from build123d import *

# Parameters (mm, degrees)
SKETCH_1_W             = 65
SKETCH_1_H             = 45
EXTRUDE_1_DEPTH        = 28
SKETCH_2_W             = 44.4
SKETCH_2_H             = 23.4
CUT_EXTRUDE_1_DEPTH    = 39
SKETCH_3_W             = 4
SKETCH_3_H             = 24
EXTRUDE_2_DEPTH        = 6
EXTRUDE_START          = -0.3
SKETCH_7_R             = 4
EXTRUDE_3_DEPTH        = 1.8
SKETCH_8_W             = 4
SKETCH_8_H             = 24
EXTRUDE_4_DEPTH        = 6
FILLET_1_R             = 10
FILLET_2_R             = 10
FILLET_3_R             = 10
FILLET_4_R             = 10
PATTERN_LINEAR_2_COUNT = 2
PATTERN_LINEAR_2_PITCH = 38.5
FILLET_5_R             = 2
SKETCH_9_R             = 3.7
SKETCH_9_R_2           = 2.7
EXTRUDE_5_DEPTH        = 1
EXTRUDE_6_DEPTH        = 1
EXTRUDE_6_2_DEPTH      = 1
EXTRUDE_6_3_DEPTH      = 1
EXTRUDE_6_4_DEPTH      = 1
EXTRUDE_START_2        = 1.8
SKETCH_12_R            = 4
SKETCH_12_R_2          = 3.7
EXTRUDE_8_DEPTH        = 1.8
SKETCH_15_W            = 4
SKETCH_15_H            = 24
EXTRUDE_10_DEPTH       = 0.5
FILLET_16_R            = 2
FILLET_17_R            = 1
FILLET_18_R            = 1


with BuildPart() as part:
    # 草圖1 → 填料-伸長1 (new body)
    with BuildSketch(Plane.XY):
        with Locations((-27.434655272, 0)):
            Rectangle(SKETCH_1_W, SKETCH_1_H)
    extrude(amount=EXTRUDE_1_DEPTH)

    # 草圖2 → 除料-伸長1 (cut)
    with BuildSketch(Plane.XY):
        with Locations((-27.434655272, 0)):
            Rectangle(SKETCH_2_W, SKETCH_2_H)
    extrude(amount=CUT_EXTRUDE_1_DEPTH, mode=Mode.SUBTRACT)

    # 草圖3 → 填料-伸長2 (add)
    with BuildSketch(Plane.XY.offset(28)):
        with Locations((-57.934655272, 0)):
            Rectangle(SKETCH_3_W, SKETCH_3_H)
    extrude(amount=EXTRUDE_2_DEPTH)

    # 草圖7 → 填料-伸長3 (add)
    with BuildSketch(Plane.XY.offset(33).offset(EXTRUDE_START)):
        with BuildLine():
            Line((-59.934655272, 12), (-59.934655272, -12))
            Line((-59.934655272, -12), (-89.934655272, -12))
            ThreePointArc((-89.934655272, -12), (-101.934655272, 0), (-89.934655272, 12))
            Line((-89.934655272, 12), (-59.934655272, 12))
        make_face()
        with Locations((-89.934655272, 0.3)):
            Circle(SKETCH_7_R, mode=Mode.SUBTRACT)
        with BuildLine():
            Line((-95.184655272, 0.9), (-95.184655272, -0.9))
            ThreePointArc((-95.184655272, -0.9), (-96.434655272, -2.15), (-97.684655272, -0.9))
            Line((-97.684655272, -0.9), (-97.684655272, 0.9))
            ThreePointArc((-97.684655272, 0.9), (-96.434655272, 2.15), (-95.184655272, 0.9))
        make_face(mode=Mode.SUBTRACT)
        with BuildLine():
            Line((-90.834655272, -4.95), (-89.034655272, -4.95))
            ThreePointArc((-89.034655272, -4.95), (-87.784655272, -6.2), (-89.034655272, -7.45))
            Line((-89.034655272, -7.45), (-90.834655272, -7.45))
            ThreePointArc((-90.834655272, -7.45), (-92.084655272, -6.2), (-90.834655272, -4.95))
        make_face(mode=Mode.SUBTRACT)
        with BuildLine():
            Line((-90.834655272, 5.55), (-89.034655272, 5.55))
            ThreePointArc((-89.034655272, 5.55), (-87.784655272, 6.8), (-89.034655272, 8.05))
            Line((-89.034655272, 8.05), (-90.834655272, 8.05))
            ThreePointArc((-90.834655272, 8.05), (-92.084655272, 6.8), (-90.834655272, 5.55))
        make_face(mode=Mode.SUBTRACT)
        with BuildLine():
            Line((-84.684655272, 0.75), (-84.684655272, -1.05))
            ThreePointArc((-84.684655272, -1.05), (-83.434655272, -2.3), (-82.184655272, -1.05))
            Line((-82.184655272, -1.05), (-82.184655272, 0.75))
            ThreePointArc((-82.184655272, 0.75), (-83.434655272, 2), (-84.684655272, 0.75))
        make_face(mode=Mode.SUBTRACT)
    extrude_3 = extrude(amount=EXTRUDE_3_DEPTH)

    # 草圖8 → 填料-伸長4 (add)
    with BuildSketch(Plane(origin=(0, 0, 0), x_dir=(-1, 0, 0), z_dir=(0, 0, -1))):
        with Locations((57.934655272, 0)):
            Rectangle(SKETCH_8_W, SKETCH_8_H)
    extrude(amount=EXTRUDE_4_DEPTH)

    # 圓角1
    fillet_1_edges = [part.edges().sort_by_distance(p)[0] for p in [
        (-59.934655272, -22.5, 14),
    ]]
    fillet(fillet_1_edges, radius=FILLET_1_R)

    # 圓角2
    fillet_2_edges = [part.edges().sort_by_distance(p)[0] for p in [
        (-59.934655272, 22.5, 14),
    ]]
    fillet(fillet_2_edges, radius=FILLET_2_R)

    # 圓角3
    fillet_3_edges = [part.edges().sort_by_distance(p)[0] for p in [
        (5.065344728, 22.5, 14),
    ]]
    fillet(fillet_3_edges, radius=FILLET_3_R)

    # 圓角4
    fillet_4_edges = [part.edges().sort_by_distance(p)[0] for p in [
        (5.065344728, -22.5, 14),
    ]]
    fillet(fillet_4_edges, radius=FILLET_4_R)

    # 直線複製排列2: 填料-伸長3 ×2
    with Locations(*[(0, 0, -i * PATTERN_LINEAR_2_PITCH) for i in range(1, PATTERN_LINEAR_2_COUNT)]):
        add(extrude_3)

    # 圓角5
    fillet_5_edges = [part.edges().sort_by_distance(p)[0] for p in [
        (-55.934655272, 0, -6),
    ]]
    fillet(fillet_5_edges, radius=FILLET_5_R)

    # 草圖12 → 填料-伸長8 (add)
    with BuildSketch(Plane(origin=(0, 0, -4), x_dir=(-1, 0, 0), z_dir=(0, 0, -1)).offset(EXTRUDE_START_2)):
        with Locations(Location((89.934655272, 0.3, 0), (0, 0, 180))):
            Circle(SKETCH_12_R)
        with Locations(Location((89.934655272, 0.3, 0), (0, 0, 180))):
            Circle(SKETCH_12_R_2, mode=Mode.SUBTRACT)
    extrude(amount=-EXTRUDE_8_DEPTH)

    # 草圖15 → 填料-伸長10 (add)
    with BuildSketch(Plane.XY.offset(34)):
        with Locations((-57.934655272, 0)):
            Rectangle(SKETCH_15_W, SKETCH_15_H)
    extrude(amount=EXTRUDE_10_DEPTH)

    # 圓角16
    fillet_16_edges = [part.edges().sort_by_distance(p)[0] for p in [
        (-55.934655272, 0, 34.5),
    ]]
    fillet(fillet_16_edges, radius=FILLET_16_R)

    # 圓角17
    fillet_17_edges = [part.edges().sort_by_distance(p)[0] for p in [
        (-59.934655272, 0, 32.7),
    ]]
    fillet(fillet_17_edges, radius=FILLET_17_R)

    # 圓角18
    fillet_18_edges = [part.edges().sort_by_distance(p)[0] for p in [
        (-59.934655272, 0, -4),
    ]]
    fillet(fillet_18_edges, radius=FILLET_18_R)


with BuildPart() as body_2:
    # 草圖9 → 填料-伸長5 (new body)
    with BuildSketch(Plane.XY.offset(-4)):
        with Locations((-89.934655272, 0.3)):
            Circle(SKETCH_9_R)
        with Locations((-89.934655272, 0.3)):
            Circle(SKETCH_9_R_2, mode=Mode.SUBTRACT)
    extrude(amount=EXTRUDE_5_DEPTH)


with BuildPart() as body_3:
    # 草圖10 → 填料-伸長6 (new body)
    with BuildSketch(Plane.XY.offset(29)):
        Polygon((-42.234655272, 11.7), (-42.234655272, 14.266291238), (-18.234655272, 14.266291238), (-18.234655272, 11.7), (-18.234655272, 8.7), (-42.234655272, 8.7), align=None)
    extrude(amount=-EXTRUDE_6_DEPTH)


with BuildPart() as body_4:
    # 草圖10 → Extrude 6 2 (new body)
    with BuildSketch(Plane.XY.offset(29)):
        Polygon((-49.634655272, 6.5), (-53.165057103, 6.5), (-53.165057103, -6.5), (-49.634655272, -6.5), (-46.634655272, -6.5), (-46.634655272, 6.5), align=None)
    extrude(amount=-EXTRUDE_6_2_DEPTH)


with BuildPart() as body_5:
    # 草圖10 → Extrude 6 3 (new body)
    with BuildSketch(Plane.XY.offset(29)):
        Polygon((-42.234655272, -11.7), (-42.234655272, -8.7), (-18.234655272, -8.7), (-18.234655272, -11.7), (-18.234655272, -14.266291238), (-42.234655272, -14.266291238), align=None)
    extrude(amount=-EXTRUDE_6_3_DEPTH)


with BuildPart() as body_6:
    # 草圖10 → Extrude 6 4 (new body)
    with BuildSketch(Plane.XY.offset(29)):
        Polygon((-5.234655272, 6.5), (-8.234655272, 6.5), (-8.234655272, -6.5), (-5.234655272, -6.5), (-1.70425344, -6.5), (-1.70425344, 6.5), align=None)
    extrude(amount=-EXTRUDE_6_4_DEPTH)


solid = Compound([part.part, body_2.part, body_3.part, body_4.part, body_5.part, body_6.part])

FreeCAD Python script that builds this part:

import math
import FreeCAD as App
import Part
import Sketcher
from FreeCAD import Vector


def edges_at(feature, points):
    """Names of the edges that pass closest to the given points."""
    edges = feature.Shape.Edges
    near = lambda p: min(range(len(edges)), key=lambda i: edges[i].distToShape(Part.Vertex(*p))[0])
    return sorted({f"Edge{near(p) + 1}" for p in points})


def add_polygon(sketch, points):
    """Adds a closed chain of lines whose ends are joined by coincident constraints."""
    first, n = sketch.GeometryCount, len(points)
    for a, b in zip(points, points[1:] + points[:1]):
        sketch.addGeometry(Part.LineSegment(App.Vector(*a, 0), App.Vector(*b, 0)), False)
    for i in range(n):
        sketch.addConstraint(Sketcher.Constraint("Coincident", first + i, 2, first + (i + 1) % n, 1))

doc = App.newDocument("Part")
body = doc.addObject("PartDesign::Body", "Body")

# Sketch on XY plane
sketch1 = body.newObject("Sketcher::SketchObject", "Sketch")
sketch1.AttachmentSupport = (doc.getObject("XY_Plane"), [""])
sketch1.MapMode = "FlatFace"
add_polygon(sketch1, [(-60, 22), (-60, -22), (5, -22), (5, 22)])  # lines 0-3
sketch1.addConstraint([
    Sketcher.Constraint("Vertical", 0),
    Sketcher.Constraint("Horizontal", 1),
    Sketcher.Constraint("Vertical", 2),
    Sketcher.Constraint("Horizontal", 3),
    Sketcher.Constraint("DistanceX", 1, 1, 1, 2, 65.0),
    Sketcher.Constraint("DistanceY", 0, 2, 0, 1, 45.0),
    Sketcher.Constraint("DistanceY", 0, 2, -1, 1, 22.5),
    Sketcher.Constraint("DistanceX", 0, 2, -1, 1, 59.934655),
])
pad1 = body.newObject("PartDesign::Pad", "Pad")
pad1.Profile = sketch1
pad1.Length = 28

# Sketch on XY plane
sketch2 = body.newObject("Sketcher::SketchObject", "Sketch001")
sketch2.AttachmentSupport = (doc.getObject("XY_Plane"), [""])
sketch2.MapMode = "FlatFace"
add_polygon(sketch2, [(-50, 12), (-50, -12), (-5, -12), (-5, 12)])  # lines 0-3
sketch2.addConstraint([
    Sketcher.Constraint("Vertical", 0),
    Sketcher.Constraint("Horizontal", 1),
    Sketcher.Constraint("Vertical", 2),
    Sketcher.Constraint("Horizontal", 3),
    Sketcher.Constraint("DistanceX", 1, 1, 1, 2, 44.4),
    Sketcher.Constraint("DistanceY", 0, 2, 0, 1, 23.4),
    Sketcher.Constraint("DistanceY", 0, 2, -1, 1, 11.7),
    Sketcher.Constraint("DistanceX", 0, 2, -1, 1, 49.634655),
])
pocket1 = body.newObject("PartDesign::Pocket", "Pocket")
pocket1.Profile = sketch2
pocket1.Length = 39
pocket1.Reversed = True

# Sketch on XY plane
sketch3 = body.newObject("Sketcher::SketchObject", "Sketch002")
sketch3.AttachmentSupport = (doc.getObject("XY_Plane"), [""])
sketch3.MapMode = "FlatFace"
sketch3.AttachmentOffset = App.Placement(Vector(0, 0, 28), App.Rotation())
add_polygon(sketch3, [(-59.9, 12), (-59.9, -12), (-55.9, -12), (-55.9, 12)])  # lines 0-3
sketch3.addConstraint([
    Sketcher.Constraint("Vertical", 0),
    Sketcher.Constraint("Horizontal", 1),
    Sketcher.Constraint("Vertical", 2),
    Sketcher.Constraint("Horizontal", 3),
    Sketcher.Constraint("DistanceX", 1, 1, 1, 2, 4.0),
    Sketcher.Constraint("DistanceY", 0, 2, 0, 1, 24.0),
    Sketcher.Constraint("DistanceY", 0, 2, -1, 1, 12.0),
    Sketcher.Constraint("DistanceX", 0, 2, -1, 1, 59.934655),
])
pad2 = body.newObject("PartDesign::Pad", "Pad001")
pad2.Profile = sketch3
pad2.Length = 6

# Sketch on XY plane
sketch4 = body.newObject("Sketcher::SketchObject", "Sketch003")
sketch4.AttachmentSupport = (doc.getObject("XY_Plane"), [""])
sketch4.MapMode = "FlatFace"
sketch4.AttachmentOffset = App.Placement(Vector(0, 0, 32.7), App.Rotation())
sketch4.addGeometry([
    Part.LineSegment(Vector(-59.9, -12, 0), Vector(-59.9, 12, 0)),  # 0
    Part.LineSegment(Vector(-59.9, 12, 0), Vector(-89.9, 12, 0)),  # 1
    Part.ArcOfCircle(Part.Circle(Vector(-89.9, 0, 0), Vector(0, 0, 1), 12), math.radians(90), math.radians(270)),  # 2
    Part.LineSegment(Vector(-89.9, -12, 0), Vector(-59.9, -12, 0)),  # 3
    Part.ArcOfCircle(Part.Circle(Vector(-83.4, 0.8, 0), Vector(0, 0, 1), 1.2), math.radians(0), math.radians(180)),  # 4
    Part.LineSegment(Vector(-82.2, 0.8, 0), Vector(-82.2, -1.1, 0)),  # 5
    Part.ArcOfCircle(Part.Circle(Vector(-83.4, -1.1, 0), Vector(0, 0, 1), 1.2), math.radians(180), math.radians(360)),  # 6
    Part.LineSegment(Vector(-84.7, -1.1, 0), Vector(-84.7, 0.8, 0)),  # 7
    Part.LineSegment(Vector(-90.8, -5, 0), Vector(-89, -5, 0)),  # 8
    Part.ArcOfCircle(Part.Circle(Vector(-89, -6.2, 0), Vector(0, 0, 1), 1.2), math.radians(-90), math.radians(90)),  # 9
    Part.LineSegment(Vector(-89, -7.5, 0), Vector(-90.8, -7.5, 0)),  # 10
    Part.ArcOfCircle(Part.Circle(Vector(-90.8, -6.2, 0), Vector(0, 0, 1), 1.2), math.radians(90), math.radians(270)),  # 11
    Part.LineSegment(Vector(-95.2, 0.9, 0), Vector(-95.2, -0.9, 0)),  # 12
    Part.ArcOfCircle(Part.Circle(Vector(-96.4, -0.9, 0), Vector(0, 0, 1), 1.2), math.radians(180), math.radians(360)),  # 13
    Part.LineSegment(Vector(-97.7, -0.9, 0), Vector(-97.7, 0.9, 0)),  # 14
    Part.ArcOfCircle(Part.Circle(Vector(-96.4, 0.9, 0), Vector(0, 0, 1), 1.2), math.radians(0), math.radians(180)),  # 15
    Part.Circle(Vector(-89.9, 0.3, 0), Vector(0, 0, 1), 4),  # 16
    Part.ArcOfCircle(Part.Circle(Vector(-90.8, 6.8, 0), Vector(0, 0, 1), 1.2), math.radians(90), math.radians(270)),  # 17
    Part.LineSegment(Vector(-90.8, 8.1, 0), Vector(-89, 8.1, 0)),  # 18
    Part.ArcOfCircle(Part.Circle(Vector(-89, 6.8, 0), Vector(0, 0, 1), 1.2), math.radians(-90), math.radians(90)),  # 19
    Part.LineSegment(Vector(-89, 5.5, 0), Vector(-90.8, 5.5, 0)),  # 20
], False)
sketch4.addConstraint([
    Sketcher.Constraint("Coincident", 0, 2, 1, 1),
    Sketcher.Constraint("Tangent", 1, 2, 2, 1),
    Sketcher.Constraint("Tangent", 2, 2, 3, 1),
    Sketcher.Constraint("Coincident", 3, 2, 0, 1),
    Sketcher.Constraint("Tangent", 4, 1, 5, 1),
    Sketcher.Constraint("Tangent", 5, 2, 6, 2),
    Sketcher.Constraint("Tangent", 6, 1, 7, 1),
    Sketcher.Constraint("Tangent", 7, 2, 4, 2),
    Sketcher.Constraint("Tangent", 8, 2, 9, 2),
    Sketcher.Constraint("Tangent", 9, 1, 10, 1),
    Sketcher.Constraint("Tangent", 10, 2, 11, 2),
    Sketcher.Constraint("Tangent", 11, 1, 8, 1),
    Sketcher.Constraint("Tangent", 12, 2, 13, 2),
    Sketcher.Constraint("Tangent", 13, 1, 14, 1),
    Sketcher.Constraint("Tangent", 14, 2, 15, 2),
    Sketcher.Constraint("Tangent", 15, 1, 12, 1),
    Sketcher.Constraint("Tangent", 17, 1, 18, 1),
    Sketcher.Constraint("Tangent", 18, 2, 19, 2),
    Sketcher.Constraint("Tangent", 19, 1, 20, 1),
    Sketcher.Constraint("Tangent", 20, 2, 17, 2),
    Sketcher.Constraint("Vertical", 0),
    Sketcher.Constraint("Horizontal", 1),
    Sketcher.Constraint("Horizontal", 3),
    Sketcher.Constraint("Vertical", 5),
    Sketcher.Constraint("Vertical", 7),
    Sketcher.Constraint("Horizontal", 8),
    Sketcher.Constraint("Horizontal", 10),
    Sketcher.Constraint("Vertical", 12),
    Sketcher.Constraint("Vertical", 14),
    Sketcher.Constraint("Horizontal", 18),
    Sketcher.Constraint("Horizontal", 20),
    Sketcher.Constraint("Equal", 6, 9),
    Sketcher.Constraint("Equal", 11, 13),
    Sketcher.Constraint("Equal", 15, 17),
    Sketcher.Constraint("PointOnObject", 2, 3, -1),
    Sketcher.Constraint("Vertical", 2, 3, 16, 3),
    Sketcher.Constraint("Vertical", 11, 3, 17, 3),
    Sketcher.Constraint("Vertical", 9, 3, 19, 3),
    Sketcher.Constraint("Equal", 20, 5),
    Sketcher.Constraint("Equal", 7, 12),
    Sketcher.Constraint("Diameter", 16, 8.0),
    Sketcher.Constraint("Radius", 2, 12.0),
    Sketcher.Constraint("DistanceX", 1, 2, 1, 1, 30.0),
    Sketcher.Constraint("Radius", 4, 1.25),
    Sketcher.Constraint("DistanceX", 8, 1, 8, 2, 1.8),
    Sketcher.Constraint("DistanceX", 13, 3, 6, 3, 13.0),
    Sketcher.Constraint("DistanceY", 9, 3, -1, 1, 6.2),
    Sketcher.Constraint("DistanceY", 13, 3, -1, 1, 0.9),
    Sketcher.Constraint("DistanceY", -1, 1, 16, 3, 0.3),
    Sketcher.Constraint("DistanceY", -1, 1, 17, 3, 6.8),
    Sketcher.Constraint("DistanceX", 2, 3, 4, 3, 6.5),
    Sketcher.Constraint("DistanceX", 2, 3, 9, 3, 0.9),
    Sketcher.Constraint("DistanceY", 8, 2, 6, 1, 3.9),
    Sketcher.Constraint("DistanceX", 2, 3, -1, 1, 89.934655),
])
pad3 = body.newObject("PartDesign::Pad", "Pad002")
pad3.Profile = sketch4
pad3.Length = 1.8

# Sketch on XY plane
sketch5 = body.newObject("Sketcher::SketchObject", "Sketch004")
sketch5.AttachmentSupport = (doc.getObject("XY_Plane"), [""])
sketch5.MapMode = "FlatFace"
add_polygon(sketch5, [(-55.9, 12), (-55.9, -12), (-59.9, -12), (-59.9, 12)])  # lines 0-3
sketch5.addConstraint([
    Sketcher.Constraint("Vertical", 0),
    Sketcher.Constraint("Horizontal", 1),
    Sketcher.Constraint("Vertical", 2),
    Sketcher.Constraint("Horizontal", 3),
    Sketcher.Constraint("DistanceX", 1, 2, 1, 1, 4.0),
    Sketcher.Constraint("DistanceY", 0, 2, 0, 1, 24.0),
    Sketcher.Constraint("DistanceY", 0, 2, -1, 1, 12.0),
    Sketcher.Constraint("DistanceX", 0, 2, -1, 1, 55.934655),
])
pad4 = body.newObject("PartDesign::Pad", "Pad003")
pad4.Profile = sketch5
pad4.Length = 6
pad4.Reversed = True
doc.recompute()

fillet = body.newObject("PartDesign::Fillet", "Fillet")
fillet.Base = (pad4, edges_at(pad4, [(-59.935, -22.5, 14)]))
fillet.Radius = 10
doc.recompute()

fillet2 = body.newObject("PartDesign::Fillet", "Fillet001")
fillet2.Base = (fillet, edges_at(fillet, [(-59.935, 22.5, 14)]))
fillet2.Radius = 10
doc.recompute()

fillet3 = body.newObject("PartDesign::Fillet", "Fillet002")
fillet3.Base = (fillet2, edges_at(fillet2, [(5.065, 22.5, 14)]))
fillet3.Radius = 10
doc.recompute()

fillet4 = body.newObject("PartDesign::Fillet", "Fillet003")
fillet4.Base = (fillet3, edges_at(fillet3, [(5.065, -22.5, 14)]))
fillet4.Radius = 10
doc.recompute()

linearpattern = body.newObject("PartDesign::LinearPattern", "LinearPattern")
linearpattern.Originals = [pad3]
linearpattern.Direction = (doc.getObject("Z_Axis"), [""])
linearpattern.Mode = "offset"
linearpattern.Offset = 38.5
linearpattern.Occurrences = 2
linearpattern.Reversed = True
body.Tip = linearpattern
doc.recompute()

fillet5 = body.newObject("PartDesign::Fillet", "Fillet004")
fillet5.Base = (linearpattern, edges_at(linearpattern, [(-55.935, 0, -6)]))
fillet5.Radius = 2

# Sketch on XY plane
sketch6 = body.newObject("Sketcher::SketchObject", "Sketch005")
sketch6.AttachmentSupport = (doc.getObject("XY_Plane"), [""])
sketch6.MapMode = "FlatFace"
sketch6.AttachmentOffset = App.Placement(Vector(0, 0, -5.8), App.Rotation())
sketch6.addGeometry([
    Part.Circle(Vector(-89.9, 0.3, 0), Vector(0, 0, 1), 4),
    Part.Circle(Vector(-89.9, 0.3, 0), Vector(0, 0, 1), 3.7),
], False)
sketch6.addConstraint([
    Sketcher.Constraint("Coincident", 1, 3, 0, 3),
    Sketcher.Constraint("Diameter", 0, 8.0),
    Sketcher.Constraint("Diameter", 1, 7.4),
    Sketcher.Constraint("DistanceY", -1, 1, 0, 3, 0.3),
    Sketcher.Constraint("DistanceX", 0, 3, -1, 1, 89.934655),
])
pad5 = body.newObject("PartDesign::Pad", "Pad004")
pad5.Profile = sketch6
pad5.Length = 1.8

# Sketch on XY plane
sketch7 = body.newObject("Sketcher::SketchObject", "Sketch006")
sketch7.AttachmentSupport = (doc.getObject("XY_Plane"), [""])
sketch7.MapMode = "FlatFace"
sketch7.AttachmentOffset = App.Placement(Vector(0, 0, 34), App.Rotation())
add_polygon(sketch7, [(-59.9, 12), (-59.9, -12), (-55.9, -12), (-55.9, 12)])  # lines 0-3
sketch7.addConstraint([
    Sketcher.Constraint("Vertical", 0),
    Sketcher.Constraint("Horizontal", 1),
    Sketcher.Constraint("Vertical", 2),
    Sketcher.Constraint("Horizontal", 3),
    Sketcher.Constraint("DistanceX", 1, 1, 1, 2, 4.0),
    Sketcher.Constraint("DistanceY", 0, 2, 0, 1, 24.0),
    Sketcher.Constraint("DistanceY", 0, 2, -1, 1, 12.0),
    Sketcher.Constraint("DistanceX", 0, 2, -1, 1, 59.934655),
])
pad6 = body.newObject("PartDesign::Pad", "Pad005")
pad6.Profile = sketch7
pad6.Length = 0.5
doc.recompute()

fillet6 = body.newObject("PartDesign::Fillet", "Fillet005")
fillet6.Base = (pad6, edges_at(pad6, [(-55.935, 0, 34.5)]))
fillet6.Radius = 2
doc.recompute()

fillet7 = body.newObject("PartDesign::Fillet", "Fillet006")
fillet7.Base = (fillet6, edges_at(fillet6, [(-59.935, 0, 32.7)]))
fillet7.Radius = 1
doc.recompute()

fillet8 = body.newObject("PartDesign::Fillet", "Fillet007")
fillet8.Base = (fillet7, edges_at(fillet7, [(-59.935, 0, -4)]))
fillet8.Radius = 1
body2 = doc.addObject("PartDesign::Body", "Body001")

# Sketch on XY plane
sketch8 = body2.newObject("Sketcher::SketchObject", "Sketch007")
sketch8.AttachmentSupport = (doc.getObject("XY_Plane001"), [""])
sketch8.MapMode = "FlatFace"
sketch8.AttachmentOffset = App.Placement(Vector(0, 0, -4), App.Rotation())
sketch8.addGeometry([
    Part.Circle(Vector(-89.9, 0.3, 0), Vector(0, 0, 1), 3.7),
    Part.Circle(Vector(-89.9, 0.3, 0), Vector(0, 0, 1), 2.7),
], False)
sketch8.addConstraint([
    Sketcher.Constraint("Coincident", 1, 3, 0, 3),
    Sketcher.Constraint("Diameter", 0, 7.4),
    Sketcher.Constraint("Diameter", 1, 5.4),
    Sketcher.Constraint("DistanceY", -1, 1, 0, 3, 0.3),
    Sketcher.Constraint("DistanceX", 0, 3, -1, 1, 89.934655),
])
pad7 = body2.newObject("PartDesign::Pad", "Pad006")
pad7.Profile = sketch8
pad7.Length = 1
body3 = doc.addObject("PartDesign::Body", "Body002")

# Sketch on XY plane
sketch9 = body3.newObject("Sketcher::SketchObject", "Sketch008")
sketch9.AttachmentSupport = (doc.getObject("XY_Plane002"), [""])
sketch9.MapMode = "FlatFace"
sketch9.AttachmentOffset = App.Placement(Vector(0, 0, 29), App.Rotation())
add_polygon(sketch9, [(-42, 14), (-42, 9), (-18, 9), (-18, 14)])  # lines 0-3
sketch9.addConstraint([
    Sketcher.Constraint("Vertical", 0),
    Sketcher.Constraint("Horizontal", 1),
    Sketcher.Constraint("Vertical", 2),
    Sketcher.Constraint("Horizontal", 3),
    Sketcher.Constraint("DistanceX", 1, 1, 1, 2, 24.0),
    Sketcher.Constraint("DistanceY", -1, 1, 0, 2, 8.7),
    Sketcher.Constraint("DistanceY", 0, 2, 0, 1, 5.566291),
    Sketcher.Constraint("DistanceX", 0, 2, -1, 1, 42.234655),
])
pad8 = body3.newObject("PartDesign::Pad", "Pad007")
pad8.Profile = sketch9
pad8.Length = 1
pad8.Reversed = True
body4 = doc.addObject("PartDesign::Body", "Body003")

# Sketch on XY plane
sketch10 = body4.newObject("Sketcher::SketchObject", "Sketch009")
sketch10.AttachmentSupport = (doc.getObject("XY_Plane003"), [""])
sketch10.MapMode = "FlatFace"
sketch10.AttachmentOffset = App.Placement(Vector(0, 0, 29), App.Rotation())
add_polygon(sketch10, [(-53, 6), (-53, -6), (-47, -6), (-47, 6)])  # lines 0-3
sketch10.addConstraint([
    Sketcher.Constraint("Vertical", 0),
    Sketcher.Constraint("Horizontal", 1),
    Sketcher.Constraint("Vertical", 2),
    Sketcher.Constraint("Horizontal", 3),
    Sketcher.Constraint("DistanceY", 0, 2, 0, 1, 13.0),
    Sketcher.Constraint("DistanceY", 0, 2, -1, 1, 6.5),
    Sketcher.Constraint("DistanceX", 1, 1, 1, 2, 6.530402),
    Sketcher.Constraint("DistanceX", 0, 2, -1, 1, 53.165057),
])
pad9 = body4.newObject("PartDesign::Pad", "Pad008")
pad9.Profile = sketch10
pad9.Length = 1
pad9.Reversed = True
body5 = doc.addObject("PartDesign::Body", "Body004")

# Sketch on XY plane
sketch11 = body5.newObject("Sketcher::SketchObject", "Sketch010")
sketch11.AttachmentSupport = (doc.getObject("XY_Plane004"), [""])
sketch11.MapMode = "FlatFace"
sketch11.AttachmentOffset = App.Placement(Vector(0, 0, 29), App.Rotation())
add_polygon(sketch11, [(-42, -9), (-42, -14), (-18, -14), (-18, -9)])  # lines 0-3
sketch11.addConstraint([
    Sketcher.Constraint("Vertical", 0),
    Sketcher.Constraint("Horizontal", 1),
    Sketcher.Constraint("Vertical", 2),
    Sketcher.Constraint("Horizontal", 3),
    Sketcher.Constraint("DistanceX", 1, 1, 1, 2, 24.0),
    Sketcher.Constraint("DistanceY", 2, 2, -1, 1, 8.7),
    Sketcher.Constraint("DistanceY", 0, 2, 0, 1, 5.566291),
    Sketcher.Constraint("DistanceX", 0, 2, -1, 1, 42.234655),
])
pad10 = body5.newObject("PartDesign::Pad", "Pad009")
pad10.Profile = sketch11
pad10.Length = 1
pad10.Reversed = True
body6 = doc.addObject("PartDesign::Body", "Body005")

# Sketch on XY plane
sketch12 = body6.newObject("Sketcher::SketchObject", "Sketch011")
sketch12.AttachmentSupport = (doc.getObject("XY_Plane005"), [""])
sketch12.MapMode = "FlatFace"
sketch12.AttachmentOffset = App.Placement(Vector(0, 0, 29), App.Rotation())
add_polygon(sketch12, [(-8, 6), (-8, -6), (-2, -6), (-2, 6)])  # lines 0-3
sketch12.addConstraint([
    Sketcher.Constraint("Vertical", 0),
    Sketcher.Constraint("Horizontal", 1),
    Sketcher.Constraint("Vertical", 2),
    Sketcher.Constraint("Horizontal", 3),
    Sketcher.Constraint("DistanceY", 0, 2, 0, 1, 13.0),
    Sketcher.Constraint("DistanceY", 0, 2, -1, 1, 6.5),
    Sketcher.Constraint("DistanceX", 1, 1, 1, 2, 6.530402),
    Sketcher.Constraint("DistanceX", 0, 2, -1, 1, 8.234655),
])
pad11 = body6.newObject("PartDesign::Pad", "Pad010")
pad11.Profile = sketch12
pad11.Length = 1
pad11.Reversed = True

doc.recompute()
